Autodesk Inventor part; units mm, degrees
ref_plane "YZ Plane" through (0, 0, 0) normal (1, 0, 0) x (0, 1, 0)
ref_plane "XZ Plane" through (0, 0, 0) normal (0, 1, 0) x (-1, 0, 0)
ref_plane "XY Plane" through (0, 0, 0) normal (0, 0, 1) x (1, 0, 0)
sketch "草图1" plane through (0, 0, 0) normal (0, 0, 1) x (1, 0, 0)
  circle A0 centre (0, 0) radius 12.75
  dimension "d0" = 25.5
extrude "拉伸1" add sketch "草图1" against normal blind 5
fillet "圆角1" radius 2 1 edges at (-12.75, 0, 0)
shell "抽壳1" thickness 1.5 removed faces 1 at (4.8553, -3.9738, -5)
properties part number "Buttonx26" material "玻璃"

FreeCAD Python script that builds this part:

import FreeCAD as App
import Part
import Sketcher
Q = App.Units.Quantity


def edges_at(feature, points):
    """Names of the edges that pass closest to the given points."""
    edges = feature.Shape.Edges
    near = lambda p: min(range(len(edges)), key=lambda i: edges[i].distToShape(Part.Vertex(*p))[0])
    return sorted({f"Edge{near(p) + 1}" for p in points})


def faces_at(feature, points):
    """Names of the faces that lie closest to the given points."""
    faces = feature.Shape.Faces
    near = lambda p: min(range(len(faces)), key=lambda i: faces[i].distToShape(Part.Vertex(*p))[0])
    return sorted({f"Face{near(p) + 1}" for p in points})

doc = App.newDocument("Part")
body = doc.addObject("PartDesign::Body", "Body")

sketch1 = body.newObject("Sketcher::SketchObject", "Sketch")
sketch1.AttachmentSupport = (doc.getObject("XY_Plane"), [""])
sketch1.MapMode = "FlatFace"
sketch1.addGeometry(Part.Circle(App.Vector(0, 0, 0), App.Vector(0, 0, 1), 12.75), False)
sketch1.addConstraint([
    Sketcher.Constraint("Coincident", 0, 3, -1, 1),
    Sketcher.Constraint("Diameter", 0, Q("25.5 mm")),
])
pad1 = body.newObject("PartDesign::Pad", "Pad")
pad1.Profile = sketch1
pad1.Length = 5
pad1.Reversed = True
doc.recompute()

fillet = body.newObject("PartDesign::Fillet", "Fillet")
fillet.Base = (pad1, edges_at(pad1, [(-12.75, 0, 0)]))
fillet.Radius = 2
doc.recompute()

thickness = body.newObject("PartDesign::Thickness", "Thickness")
thickness.Base = (fillet, faces_at(fillet, [(4.855, -3.974, -5)]))
thickness.Value = 1.5
thickness.Reversed = True
thickness.Join = "Intersection"

doc.recompute()
